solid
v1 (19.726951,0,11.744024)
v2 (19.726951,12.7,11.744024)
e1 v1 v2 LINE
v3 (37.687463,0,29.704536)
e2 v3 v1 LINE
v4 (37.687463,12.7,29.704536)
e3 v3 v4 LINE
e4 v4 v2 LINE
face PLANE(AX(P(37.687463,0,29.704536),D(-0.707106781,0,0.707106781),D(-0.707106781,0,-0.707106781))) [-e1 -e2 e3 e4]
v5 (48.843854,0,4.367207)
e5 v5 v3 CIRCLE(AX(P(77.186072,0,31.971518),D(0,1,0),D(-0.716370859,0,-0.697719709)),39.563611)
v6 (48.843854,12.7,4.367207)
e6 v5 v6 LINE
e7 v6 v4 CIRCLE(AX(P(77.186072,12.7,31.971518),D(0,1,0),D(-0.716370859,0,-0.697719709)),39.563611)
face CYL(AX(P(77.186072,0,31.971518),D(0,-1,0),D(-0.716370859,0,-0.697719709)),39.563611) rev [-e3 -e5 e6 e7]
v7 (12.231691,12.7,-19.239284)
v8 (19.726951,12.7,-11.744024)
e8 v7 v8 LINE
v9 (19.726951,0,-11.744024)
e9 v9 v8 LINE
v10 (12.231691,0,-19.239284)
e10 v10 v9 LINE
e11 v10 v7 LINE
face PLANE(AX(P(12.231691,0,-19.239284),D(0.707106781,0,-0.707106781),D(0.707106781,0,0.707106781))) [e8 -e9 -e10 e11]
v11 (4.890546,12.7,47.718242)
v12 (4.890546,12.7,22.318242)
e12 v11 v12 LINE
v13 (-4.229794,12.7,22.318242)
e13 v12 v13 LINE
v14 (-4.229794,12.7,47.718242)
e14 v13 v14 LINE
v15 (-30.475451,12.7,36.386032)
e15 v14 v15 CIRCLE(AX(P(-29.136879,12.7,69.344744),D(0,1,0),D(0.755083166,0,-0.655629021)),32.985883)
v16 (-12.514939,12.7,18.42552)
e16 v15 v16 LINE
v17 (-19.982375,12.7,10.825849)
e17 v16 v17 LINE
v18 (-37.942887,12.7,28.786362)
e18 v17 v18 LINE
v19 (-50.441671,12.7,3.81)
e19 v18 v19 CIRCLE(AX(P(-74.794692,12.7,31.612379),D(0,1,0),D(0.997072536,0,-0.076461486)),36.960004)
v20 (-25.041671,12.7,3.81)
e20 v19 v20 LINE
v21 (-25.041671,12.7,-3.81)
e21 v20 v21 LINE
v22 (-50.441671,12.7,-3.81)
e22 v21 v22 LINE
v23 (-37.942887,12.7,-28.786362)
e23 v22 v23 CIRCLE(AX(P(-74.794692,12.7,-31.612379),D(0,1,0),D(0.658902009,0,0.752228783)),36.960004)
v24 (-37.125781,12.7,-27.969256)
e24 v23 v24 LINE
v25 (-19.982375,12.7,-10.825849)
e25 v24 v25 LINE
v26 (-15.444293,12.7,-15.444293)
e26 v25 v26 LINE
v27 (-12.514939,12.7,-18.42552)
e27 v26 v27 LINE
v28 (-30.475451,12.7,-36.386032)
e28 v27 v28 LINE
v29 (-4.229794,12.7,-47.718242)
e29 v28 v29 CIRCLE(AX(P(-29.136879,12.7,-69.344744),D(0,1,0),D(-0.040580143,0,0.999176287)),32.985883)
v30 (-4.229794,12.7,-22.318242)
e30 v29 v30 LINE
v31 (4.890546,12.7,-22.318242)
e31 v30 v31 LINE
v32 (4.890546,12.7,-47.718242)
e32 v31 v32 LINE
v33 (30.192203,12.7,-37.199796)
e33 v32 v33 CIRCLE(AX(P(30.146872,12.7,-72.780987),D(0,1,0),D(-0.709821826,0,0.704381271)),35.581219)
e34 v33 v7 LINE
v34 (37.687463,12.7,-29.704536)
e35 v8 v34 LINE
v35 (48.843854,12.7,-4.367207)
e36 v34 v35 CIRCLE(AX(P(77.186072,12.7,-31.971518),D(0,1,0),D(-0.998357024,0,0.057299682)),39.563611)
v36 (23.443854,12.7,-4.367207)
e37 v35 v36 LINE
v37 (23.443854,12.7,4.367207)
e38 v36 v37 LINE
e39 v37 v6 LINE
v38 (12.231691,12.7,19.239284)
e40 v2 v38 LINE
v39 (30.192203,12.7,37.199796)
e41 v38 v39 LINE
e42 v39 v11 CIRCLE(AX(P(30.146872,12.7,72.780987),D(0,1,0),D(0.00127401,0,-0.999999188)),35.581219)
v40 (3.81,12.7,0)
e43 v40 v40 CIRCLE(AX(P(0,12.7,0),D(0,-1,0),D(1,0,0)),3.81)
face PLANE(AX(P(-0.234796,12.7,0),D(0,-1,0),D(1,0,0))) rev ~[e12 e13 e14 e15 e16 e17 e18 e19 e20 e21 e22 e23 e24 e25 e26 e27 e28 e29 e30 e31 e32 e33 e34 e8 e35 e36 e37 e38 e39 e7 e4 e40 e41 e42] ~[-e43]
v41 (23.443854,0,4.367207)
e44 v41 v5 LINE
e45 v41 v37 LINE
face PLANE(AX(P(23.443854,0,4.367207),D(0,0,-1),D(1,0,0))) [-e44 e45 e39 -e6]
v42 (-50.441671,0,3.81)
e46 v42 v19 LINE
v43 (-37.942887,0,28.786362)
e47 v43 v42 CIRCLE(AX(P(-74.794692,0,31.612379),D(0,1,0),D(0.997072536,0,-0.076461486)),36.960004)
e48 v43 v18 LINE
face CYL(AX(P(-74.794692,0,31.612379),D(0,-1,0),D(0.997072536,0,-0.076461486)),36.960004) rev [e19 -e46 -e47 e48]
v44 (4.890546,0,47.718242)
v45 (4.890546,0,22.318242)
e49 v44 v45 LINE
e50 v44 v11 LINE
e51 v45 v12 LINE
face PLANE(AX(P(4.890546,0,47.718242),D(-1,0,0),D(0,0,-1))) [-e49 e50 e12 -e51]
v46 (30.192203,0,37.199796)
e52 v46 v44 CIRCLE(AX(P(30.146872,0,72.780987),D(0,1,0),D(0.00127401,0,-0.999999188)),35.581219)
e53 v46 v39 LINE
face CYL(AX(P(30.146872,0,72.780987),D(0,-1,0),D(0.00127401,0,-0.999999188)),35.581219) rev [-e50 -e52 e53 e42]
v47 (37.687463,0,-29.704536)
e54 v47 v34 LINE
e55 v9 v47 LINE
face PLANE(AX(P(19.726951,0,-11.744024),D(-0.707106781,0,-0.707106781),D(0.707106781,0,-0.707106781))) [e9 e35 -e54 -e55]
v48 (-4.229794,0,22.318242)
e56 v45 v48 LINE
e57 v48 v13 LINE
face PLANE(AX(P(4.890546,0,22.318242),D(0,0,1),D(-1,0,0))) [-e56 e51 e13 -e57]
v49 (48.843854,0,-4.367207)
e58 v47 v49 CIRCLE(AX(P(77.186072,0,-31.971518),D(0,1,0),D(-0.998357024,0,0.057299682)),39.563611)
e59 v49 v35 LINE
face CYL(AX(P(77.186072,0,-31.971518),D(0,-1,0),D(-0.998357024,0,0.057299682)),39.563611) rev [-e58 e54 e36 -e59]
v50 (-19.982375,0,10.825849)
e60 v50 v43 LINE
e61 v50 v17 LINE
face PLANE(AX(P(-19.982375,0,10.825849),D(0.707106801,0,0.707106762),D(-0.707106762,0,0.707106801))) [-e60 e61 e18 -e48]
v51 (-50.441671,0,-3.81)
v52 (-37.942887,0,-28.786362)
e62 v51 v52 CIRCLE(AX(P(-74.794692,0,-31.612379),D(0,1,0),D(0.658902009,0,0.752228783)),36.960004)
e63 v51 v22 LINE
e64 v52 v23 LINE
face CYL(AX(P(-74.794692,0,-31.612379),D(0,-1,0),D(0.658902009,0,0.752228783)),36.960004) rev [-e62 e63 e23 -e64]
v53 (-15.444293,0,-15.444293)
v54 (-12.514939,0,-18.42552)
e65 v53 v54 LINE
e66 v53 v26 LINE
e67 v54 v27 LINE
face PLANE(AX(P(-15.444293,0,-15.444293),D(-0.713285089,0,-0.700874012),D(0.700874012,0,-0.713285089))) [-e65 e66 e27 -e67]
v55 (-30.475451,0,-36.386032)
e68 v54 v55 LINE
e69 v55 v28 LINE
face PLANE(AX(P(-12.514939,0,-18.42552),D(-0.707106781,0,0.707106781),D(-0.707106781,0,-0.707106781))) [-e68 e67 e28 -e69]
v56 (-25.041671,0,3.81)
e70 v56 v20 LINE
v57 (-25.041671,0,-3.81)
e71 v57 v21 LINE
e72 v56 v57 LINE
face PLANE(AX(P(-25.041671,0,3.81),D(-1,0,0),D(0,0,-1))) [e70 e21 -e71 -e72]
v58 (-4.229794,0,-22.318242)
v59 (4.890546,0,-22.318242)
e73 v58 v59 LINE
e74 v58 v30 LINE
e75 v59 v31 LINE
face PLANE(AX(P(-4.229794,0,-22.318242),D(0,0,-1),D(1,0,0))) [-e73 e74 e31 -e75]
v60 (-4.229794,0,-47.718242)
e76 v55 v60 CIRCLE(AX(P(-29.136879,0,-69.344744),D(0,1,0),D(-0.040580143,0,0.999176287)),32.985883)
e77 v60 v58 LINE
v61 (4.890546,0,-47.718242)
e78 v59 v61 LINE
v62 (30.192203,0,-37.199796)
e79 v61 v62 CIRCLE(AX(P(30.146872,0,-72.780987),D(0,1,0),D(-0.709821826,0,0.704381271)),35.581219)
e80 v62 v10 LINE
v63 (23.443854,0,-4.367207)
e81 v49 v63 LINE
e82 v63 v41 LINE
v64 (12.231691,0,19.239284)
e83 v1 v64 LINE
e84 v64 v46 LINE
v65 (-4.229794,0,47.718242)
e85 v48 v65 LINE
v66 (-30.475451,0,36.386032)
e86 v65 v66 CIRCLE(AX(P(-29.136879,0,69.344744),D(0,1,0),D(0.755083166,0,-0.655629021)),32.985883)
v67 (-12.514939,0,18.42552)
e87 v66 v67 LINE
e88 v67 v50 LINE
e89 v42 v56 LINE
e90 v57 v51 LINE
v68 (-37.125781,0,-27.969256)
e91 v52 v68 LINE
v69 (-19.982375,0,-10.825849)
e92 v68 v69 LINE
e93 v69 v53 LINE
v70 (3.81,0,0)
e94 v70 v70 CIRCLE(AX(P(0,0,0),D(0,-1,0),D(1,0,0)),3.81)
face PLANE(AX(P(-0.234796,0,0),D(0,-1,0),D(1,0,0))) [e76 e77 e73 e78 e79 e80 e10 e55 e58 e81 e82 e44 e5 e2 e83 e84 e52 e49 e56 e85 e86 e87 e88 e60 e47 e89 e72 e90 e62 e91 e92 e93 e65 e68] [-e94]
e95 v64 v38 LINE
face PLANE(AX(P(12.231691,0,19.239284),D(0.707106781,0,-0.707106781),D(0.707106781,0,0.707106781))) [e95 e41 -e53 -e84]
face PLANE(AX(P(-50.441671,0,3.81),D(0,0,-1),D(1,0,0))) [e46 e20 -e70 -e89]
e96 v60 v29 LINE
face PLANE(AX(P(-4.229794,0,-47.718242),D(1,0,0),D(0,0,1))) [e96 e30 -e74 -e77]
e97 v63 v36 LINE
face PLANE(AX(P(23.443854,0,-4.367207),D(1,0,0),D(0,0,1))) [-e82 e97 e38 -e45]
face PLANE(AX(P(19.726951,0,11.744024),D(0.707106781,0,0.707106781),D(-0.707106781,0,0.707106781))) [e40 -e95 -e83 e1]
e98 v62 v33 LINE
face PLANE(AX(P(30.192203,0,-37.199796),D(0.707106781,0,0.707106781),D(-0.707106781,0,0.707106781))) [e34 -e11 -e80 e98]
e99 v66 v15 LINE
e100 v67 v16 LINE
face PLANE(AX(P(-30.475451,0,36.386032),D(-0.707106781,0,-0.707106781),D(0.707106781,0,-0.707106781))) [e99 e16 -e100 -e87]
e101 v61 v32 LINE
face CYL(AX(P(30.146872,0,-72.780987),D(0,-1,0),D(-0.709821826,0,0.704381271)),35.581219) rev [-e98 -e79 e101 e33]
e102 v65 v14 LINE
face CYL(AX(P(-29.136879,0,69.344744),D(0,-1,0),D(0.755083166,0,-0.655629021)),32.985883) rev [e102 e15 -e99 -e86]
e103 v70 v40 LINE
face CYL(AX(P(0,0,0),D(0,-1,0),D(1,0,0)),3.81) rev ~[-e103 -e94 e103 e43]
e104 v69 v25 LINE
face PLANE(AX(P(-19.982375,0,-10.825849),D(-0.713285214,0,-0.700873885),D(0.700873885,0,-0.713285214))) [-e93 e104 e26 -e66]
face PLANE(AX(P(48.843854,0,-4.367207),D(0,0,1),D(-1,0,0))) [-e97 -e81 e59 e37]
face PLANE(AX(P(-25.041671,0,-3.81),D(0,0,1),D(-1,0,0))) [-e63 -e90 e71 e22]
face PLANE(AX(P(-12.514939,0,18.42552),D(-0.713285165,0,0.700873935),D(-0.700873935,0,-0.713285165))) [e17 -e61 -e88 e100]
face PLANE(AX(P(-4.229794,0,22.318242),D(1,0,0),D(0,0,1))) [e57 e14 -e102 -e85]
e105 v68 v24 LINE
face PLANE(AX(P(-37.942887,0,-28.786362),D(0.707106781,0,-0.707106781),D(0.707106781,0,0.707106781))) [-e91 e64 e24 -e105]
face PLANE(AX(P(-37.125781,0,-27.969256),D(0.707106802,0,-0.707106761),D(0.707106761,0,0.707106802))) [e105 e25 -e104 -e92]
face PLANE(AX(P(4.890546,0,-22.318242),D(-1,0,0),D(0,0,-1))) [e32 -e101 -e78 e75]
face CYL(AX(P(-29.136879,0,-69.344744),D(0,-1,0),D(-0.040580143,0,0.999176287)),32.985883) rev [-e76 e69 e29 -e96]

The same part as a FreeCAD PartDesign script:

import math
import FreeCAD as App
import Part
import Sketcher

V = App.Vector
Q = App.Units.Quantity

doc = App.newDocument("Part")
body = doc.addObject("PartDesign::Body", "Body")

sketch1 = doc.addObject("Sketcher::SketchObject", "Sketch")
body.addObject(sketch1)
sketch1.AttachmentSupport = (doc.XZ_Plane, [""])
sketch1.MapMode = "FlatFace"
sketch1.addGeometry([
    Part.ArcOfCircle(Part.Circle(V(-29.1, 69.3, 0), V(0, 0, 1), 33), math.radians(-92), math.radians(-41)),
    Part.LineSegment(V(-30.5, 36.4, 0), V(-12.5, 18.4, 0)),
    Part.LineSegment(V(-12.5, 18.4, 0), V(-20, 10.8, 0)),
    Part.LineSegment(V(-20, 10.8, 0), V(-37.9, 28.8, 0)),
    Part.ArcOfCircle(Part.Circle(V(-74.8, 31.6, 0), V(0, 0, 1), 37), math.radians(-49), math.radians(-4)),
    Part.LineSegment(V(-50.4, 3.8, 0), V(-25, 3.8, 0)),
    Part.LineSegment(V(-25, 3.8, 0), V(-25, -3.8, 0)),
    Part.LineSegment(V(-25, -3.8, 0), V(-50.4, -3.8, 0)),
    Part.ArcOfCircle(Part.Circle(V(-74.8, -31.6, 0), V(0, 0, 1), 37), math.radians(4), math.radians(49)),
    Part.LineSegment(V(-37.9, -28.8, 0), V(-37.1, -28, 0)),
    Part.LineSegment(V(-37.1, -28, 0), V(-20, -10.8, 0)),
    Part.LineSegment(V(-20, -10.8, 0), V(-15.4, -15.4, 0)),
    Part.LineSegment(V(-15.4, -15.4, 0), V(-12.5, -18.4, 0)),
    Part.LineSegment(V(-12.5, -18.4, 0), V(-30.5, -36.4, 0)),
    Part.ArcOfCircle(Part.Circle(V(-29.1, -69.3, 0), V(0, 0, 1), 33), math.radians(41), math.radians(92)),
    Part.LineSegment(V(-4.2, -47.7, 0), V(-4.2, -22.3, 0)),
    Part.LineSegment(V(-4.2, -22.3, 0), V(4.9, -22.3, 0)),
    Part.LineSegment(V(4.9, -22.3, 0), V(4.9, -47.7, 0)),
    Part.ArcOfCircle(Part.Circle(V(30.1, -72.8, 0), V(0, 0, 1), 35.6), math.radians(90), math.radians(135)),
    Part.LineSegment(V(30.2, -37.2, 0), V(12.2, -19.2, 0)),
    Part.LineSegment(V(12.2, -19.2, 0), V(19.7, -11.7, 0)),
    Part.LineSegment(V(19.7, -11.7, 0), V(37.7, -29.7, 0)),
    Part.ArcOfCircle(Part.Circle(V(77.2, -32, 0), V(0, 0, 1), 39.6), math.radians(136), math.radians(177)),
    Part.LineSegment(V(48.8, -4.4, 0), V(23.4, -4.4, 0)),
    Part.LineSegment(V(23.4, -4.4, 0), V(23.4, 4.4, 0)),
    Part.LineSegment(V(23.4, 4.4, 0), V(48.8, 4.4, 0)),
    Part.ArcOfCircle(Part.Circle(V(77.2, 32, 0), V(0, 0, 1), 39.6), math.radians(-177), math.radians(-136)),
    Part.LineSegment(V(37.7, 29.7, 0), V(19.7, 11.7, 0)),
    Part.LineSegment(V(19.7, 11.7, 0), V(12.2, 19.2, 0)),
    Part.LineSegment(V(12.2, 19.2, 0), V(30.2, 37.2, 0)),
    Part.ArcOfCircle(Part.Circle(V(30.1, 72.8, 0), V(0, 0, 1), 35.6), math.radians(-135), math.radians(-90)),
    Part.LineSegment(V(4.9, 47.7, 0), V(4.9, 22.3, 0)),
    Part.LineSegment(V(4.9, 22.3, 0), V(-4.2, 22.3, 0)),
    Part.LineSegment(V(-4.2, 22.3, 0), V(-4.2, 47.7, 0)),
    Part.Circle(V(0, 0, 0), V(0, 0, 1), 3.8),
], False)
sketch1.addConstraint([
    Sketcher.Constraint("Coincident", 0, 1, 1, 1),
    Sketcher.Constraint("Coincident", 1, 2, 2, 1),
    Sketcher.Constraint("Coincident", 2, 2, 3, 1),
    Sketcher.Constraint("Coincident", 3, 2, 4, 2),
    Sketcher.Constraint("Coincident", 4, 1, 5, 1),
    Sketcher.Constraint("Coincident", 5, 2, 6, 1),
    Sketcher.Constraint("Coincident", 6, 2, 7, 1),
    Sketcher.Constraint("Coincident", 7, 2, 8, 2),
    Sketcher.Constraint("Coincident", 8, 1, 9, 1),
    Sketcher.Constraint("Coincident", 9, 2, 10, 1),
    Sketcher.Constraint("Coincident", 10, 2, 11, 1),
    Sketcher.Constraint("Coincident", 11, 2, 12, 1),
    Sketcher.Constraint("Coincident", 12, 2, 13, 1),
    Sketcher.Constraint("Coincident", 13, 2, 14, 2),
    Sketcher.Constraint("Coincident", 14, 1, 15, 1),
    Sketcher.Constraint("Coincident", 15, 2, 16, 1),
    Sketcher.Constraint("Coincident", 16, 2, 17, 1),
    Sketcher.Constraint("Coincident", 17, 2, 18, 2),
    Sketcher.Constraint("Coincident", 18, 1, 19, 1),
    Sketcher.Constraint("Coincident", 19, 2, 20, 1),
    Sketcher.Constraint("Coincident", 20, 2, 21, 1),
    Sketcher.Constraint("Coincident", 21, 2, 22, 2),
    Sketcher.Constraint("Coincident", 22, 1, 23, 1),
    Sketcher.Constraint("Coincident", 23, 2, 24, 1),
    Sketcher.Constraint("Coincident", 24, 2, 25, 1),
    Sketcher.Constraint("Coincident", 25, 2, 26, 2),
    Sketcher.Constraint("Coincident", 26, 1, 27, 1),
    Sketcher.Constraint("Coincident", 27, 2, 28, 1),
    Sketcher.Constraint("Coincident", 28, 2, 29, 1),
    Sketcher.Constraint("Coincident", 29, 2, 30, 2),
    Sketcher.Constraint("Coincident", 30, 1, 31, 1),
    Sketcher.Constraint("Coincident", 31, 2, 32, 1),
    Sketcher.Constraint("Coincident", 32, 2, 33, 1),
    Sketcher.Constraint("Coincident", 33, 2, 0, 2),
    Sketcher.Constraint("Horizontal", 5),
    Sketcher.Constraint("Vertical", 6),
    Sketcher.Constraint("Horizontal", 7),
    Sketcher.Constraint("Vertical", 15),
    Sketcher.Constraint("Horizontal", 16),
    Sketcher.Constraint("Vertical", 17),
    Sketcher.Constraint("Horizontal", 23),
    Sketcher.Constraint("Vertical", 24),
    Sketcher.Constraint("Horizontal", 25),
    Sketcher.Constraint("Vertical", 31),
    Sketcher.Constraint("Horizontal", 32),
    Sketcher.Constraint("Vertical", 33),
    Sketcher.Constraint("Coincident", 34, 3, -1, 1),
    Sketcher.Constraint("Equal", 4, 8),
    Sketcher.Constraint("Equal", 0, 14),
    Sketcher.Constraint("Equal", 22, 26),
    Sketcher.Constraint("Equal", 18, 30),
    Sketcher.Constraint("Symmetric", 4, 3, 8, 3, -1),
    Sketcher.Constraint("Symmetric", 0, 3, 14, 3, -1),
    Sketcher.Constraint("Symmetric", 22, 3, 26, 3, -1),
    Sketcher.Constraint("Symmetric", 18, 3, 30, 3, -1),
    Sketcher.Constraint("Symmetric", 2, 2, 10, 2, -1),
    Sketcher.Constraint("Symmetric", 1, 2, 12, 2, -1),
    Sketcher.Constraint("Symmetric", 20, 2, 27, 2, -1),
    Sketcher.Constraint("Symmetric", 19, 2, 28, 2, -1),
    Sketcher.Constraint("Symmetric", 16, 2, 31, 2, -1),
    Sketcher.Constraint("Parallel", 1, 3),
    Sketcher.Constraint("Perpendicular", 3, 9),
    Sketcher.Constraint("Parallel", 9, 10),
    Sketcher.Constraint("Parallel", 11, 12),
    Sketcher.Constraint("Parallel", 10, 13),
    Sketcher.Constraint("Perpendicular", 13, 19),
    Sketcher.Constraint("Perpendicular", 19, 20),
    Sketcher.Constraint("Perpendicular", 20, 21),
    Sketcher.Constraint("Perpendicular", 21, 27),
    Sketcher.Constraint("Perpendicular", 27, 28),
    Sketcher.Constraint("Perpendicular", 28, 29),
    Sketcher.Constraint("Horizontal", 14, 1, 17, 2),
    Sketcher.Constraint("Horizontal", 30, 1, 33, 2),
    Sketcher.Constraint("Vertical", 4, 1, 7, 2),
    Sketcher.Constraint("Vertical", 22, 1, 25, 2),
    Sketcher.Constraint("Equal", 7, 23),
    Sketcher.Constraint("Equal", 25, 15),
    Sketcher.Constraint("Equal", 1, 3),
    Sketcher.Constraint("Equal", 13, 19),
    Sketcher.Constraint("Equal", 19, 21),
    Sketcher.Constraint("Diameter", 34, Q("0.3 in")),
    Sketcher.Constraint("DistanceX", 5, 1, 5, 2, Q("1 in")),
    Sketcher.Constraint("Distance", 1, Q("1 in")),
    Sketcher.Constraint("DistanceY", 6, 2, 6, 1, Q("0.3 in")),
    Sketcher.Constraint("Radius", 18, 35.581219),
    Sketcher.Constraint("Radius", 22, 39.563611),
    Sketcher.Constraint("Radius", 0, 32.985883),
    Sketcher.Constraint("Radius", 4, 36.960004),
    Sketcher.Constraint("Distance", 20, 10.599898),
    Sketcher.Constraint("DistanceX", 16, 1, 16, 2, 9.12034),
    Sketcher.Constraint("DistanceX", 18, 3, 22, 3, 47.0392),
    Sketcher.Constraint("DistanceX", 11, 2, 14, 1, 11.214499),
    Sketcher.Constraint("Distance", 11, 6.474891),
    Sketcher.Constraint("DistanceY", 24, 1, 24, 2, 8.734414),
    Sketcher.Constraint("DistanceX", 0, 3, -1, 1, 29.136879),
    Sketcher.Constraint("DistanceX", 4, 3, -1, 1, 74.794692),
    Sketcher.Constraint("DistanceY", -1, 1, 4, 3, 31.612379),
    Sketcher.Constraint("DistanceY", 22, 3, -1, 1, 31.971518),
    Sketcher.Constraint("DistanceX", 0, 1, -1, 1, 30.475451),
    Sketcher.Constraint("DistanceY", -1, 1, 0, 1, 36.386032),
    Sketcher.Constraint("DistanceY", -1, 1, 2, 2, 10.825849),
    Sketcher.Constraint("DistanceX", 9, 2, -1, 1, 37.125781),
    Sketcher.Constraint("DistanceX", -1, 1, 19, 2, 12.231691),
])
pad1 = doc.addObject("PartDesign::Pad", "Pad")
body.addObject(pad1)
pad1.Profile = sketch1
pad1.Length = Q("0.5 in")
pad1.Reversed = True

doc.recompute()
